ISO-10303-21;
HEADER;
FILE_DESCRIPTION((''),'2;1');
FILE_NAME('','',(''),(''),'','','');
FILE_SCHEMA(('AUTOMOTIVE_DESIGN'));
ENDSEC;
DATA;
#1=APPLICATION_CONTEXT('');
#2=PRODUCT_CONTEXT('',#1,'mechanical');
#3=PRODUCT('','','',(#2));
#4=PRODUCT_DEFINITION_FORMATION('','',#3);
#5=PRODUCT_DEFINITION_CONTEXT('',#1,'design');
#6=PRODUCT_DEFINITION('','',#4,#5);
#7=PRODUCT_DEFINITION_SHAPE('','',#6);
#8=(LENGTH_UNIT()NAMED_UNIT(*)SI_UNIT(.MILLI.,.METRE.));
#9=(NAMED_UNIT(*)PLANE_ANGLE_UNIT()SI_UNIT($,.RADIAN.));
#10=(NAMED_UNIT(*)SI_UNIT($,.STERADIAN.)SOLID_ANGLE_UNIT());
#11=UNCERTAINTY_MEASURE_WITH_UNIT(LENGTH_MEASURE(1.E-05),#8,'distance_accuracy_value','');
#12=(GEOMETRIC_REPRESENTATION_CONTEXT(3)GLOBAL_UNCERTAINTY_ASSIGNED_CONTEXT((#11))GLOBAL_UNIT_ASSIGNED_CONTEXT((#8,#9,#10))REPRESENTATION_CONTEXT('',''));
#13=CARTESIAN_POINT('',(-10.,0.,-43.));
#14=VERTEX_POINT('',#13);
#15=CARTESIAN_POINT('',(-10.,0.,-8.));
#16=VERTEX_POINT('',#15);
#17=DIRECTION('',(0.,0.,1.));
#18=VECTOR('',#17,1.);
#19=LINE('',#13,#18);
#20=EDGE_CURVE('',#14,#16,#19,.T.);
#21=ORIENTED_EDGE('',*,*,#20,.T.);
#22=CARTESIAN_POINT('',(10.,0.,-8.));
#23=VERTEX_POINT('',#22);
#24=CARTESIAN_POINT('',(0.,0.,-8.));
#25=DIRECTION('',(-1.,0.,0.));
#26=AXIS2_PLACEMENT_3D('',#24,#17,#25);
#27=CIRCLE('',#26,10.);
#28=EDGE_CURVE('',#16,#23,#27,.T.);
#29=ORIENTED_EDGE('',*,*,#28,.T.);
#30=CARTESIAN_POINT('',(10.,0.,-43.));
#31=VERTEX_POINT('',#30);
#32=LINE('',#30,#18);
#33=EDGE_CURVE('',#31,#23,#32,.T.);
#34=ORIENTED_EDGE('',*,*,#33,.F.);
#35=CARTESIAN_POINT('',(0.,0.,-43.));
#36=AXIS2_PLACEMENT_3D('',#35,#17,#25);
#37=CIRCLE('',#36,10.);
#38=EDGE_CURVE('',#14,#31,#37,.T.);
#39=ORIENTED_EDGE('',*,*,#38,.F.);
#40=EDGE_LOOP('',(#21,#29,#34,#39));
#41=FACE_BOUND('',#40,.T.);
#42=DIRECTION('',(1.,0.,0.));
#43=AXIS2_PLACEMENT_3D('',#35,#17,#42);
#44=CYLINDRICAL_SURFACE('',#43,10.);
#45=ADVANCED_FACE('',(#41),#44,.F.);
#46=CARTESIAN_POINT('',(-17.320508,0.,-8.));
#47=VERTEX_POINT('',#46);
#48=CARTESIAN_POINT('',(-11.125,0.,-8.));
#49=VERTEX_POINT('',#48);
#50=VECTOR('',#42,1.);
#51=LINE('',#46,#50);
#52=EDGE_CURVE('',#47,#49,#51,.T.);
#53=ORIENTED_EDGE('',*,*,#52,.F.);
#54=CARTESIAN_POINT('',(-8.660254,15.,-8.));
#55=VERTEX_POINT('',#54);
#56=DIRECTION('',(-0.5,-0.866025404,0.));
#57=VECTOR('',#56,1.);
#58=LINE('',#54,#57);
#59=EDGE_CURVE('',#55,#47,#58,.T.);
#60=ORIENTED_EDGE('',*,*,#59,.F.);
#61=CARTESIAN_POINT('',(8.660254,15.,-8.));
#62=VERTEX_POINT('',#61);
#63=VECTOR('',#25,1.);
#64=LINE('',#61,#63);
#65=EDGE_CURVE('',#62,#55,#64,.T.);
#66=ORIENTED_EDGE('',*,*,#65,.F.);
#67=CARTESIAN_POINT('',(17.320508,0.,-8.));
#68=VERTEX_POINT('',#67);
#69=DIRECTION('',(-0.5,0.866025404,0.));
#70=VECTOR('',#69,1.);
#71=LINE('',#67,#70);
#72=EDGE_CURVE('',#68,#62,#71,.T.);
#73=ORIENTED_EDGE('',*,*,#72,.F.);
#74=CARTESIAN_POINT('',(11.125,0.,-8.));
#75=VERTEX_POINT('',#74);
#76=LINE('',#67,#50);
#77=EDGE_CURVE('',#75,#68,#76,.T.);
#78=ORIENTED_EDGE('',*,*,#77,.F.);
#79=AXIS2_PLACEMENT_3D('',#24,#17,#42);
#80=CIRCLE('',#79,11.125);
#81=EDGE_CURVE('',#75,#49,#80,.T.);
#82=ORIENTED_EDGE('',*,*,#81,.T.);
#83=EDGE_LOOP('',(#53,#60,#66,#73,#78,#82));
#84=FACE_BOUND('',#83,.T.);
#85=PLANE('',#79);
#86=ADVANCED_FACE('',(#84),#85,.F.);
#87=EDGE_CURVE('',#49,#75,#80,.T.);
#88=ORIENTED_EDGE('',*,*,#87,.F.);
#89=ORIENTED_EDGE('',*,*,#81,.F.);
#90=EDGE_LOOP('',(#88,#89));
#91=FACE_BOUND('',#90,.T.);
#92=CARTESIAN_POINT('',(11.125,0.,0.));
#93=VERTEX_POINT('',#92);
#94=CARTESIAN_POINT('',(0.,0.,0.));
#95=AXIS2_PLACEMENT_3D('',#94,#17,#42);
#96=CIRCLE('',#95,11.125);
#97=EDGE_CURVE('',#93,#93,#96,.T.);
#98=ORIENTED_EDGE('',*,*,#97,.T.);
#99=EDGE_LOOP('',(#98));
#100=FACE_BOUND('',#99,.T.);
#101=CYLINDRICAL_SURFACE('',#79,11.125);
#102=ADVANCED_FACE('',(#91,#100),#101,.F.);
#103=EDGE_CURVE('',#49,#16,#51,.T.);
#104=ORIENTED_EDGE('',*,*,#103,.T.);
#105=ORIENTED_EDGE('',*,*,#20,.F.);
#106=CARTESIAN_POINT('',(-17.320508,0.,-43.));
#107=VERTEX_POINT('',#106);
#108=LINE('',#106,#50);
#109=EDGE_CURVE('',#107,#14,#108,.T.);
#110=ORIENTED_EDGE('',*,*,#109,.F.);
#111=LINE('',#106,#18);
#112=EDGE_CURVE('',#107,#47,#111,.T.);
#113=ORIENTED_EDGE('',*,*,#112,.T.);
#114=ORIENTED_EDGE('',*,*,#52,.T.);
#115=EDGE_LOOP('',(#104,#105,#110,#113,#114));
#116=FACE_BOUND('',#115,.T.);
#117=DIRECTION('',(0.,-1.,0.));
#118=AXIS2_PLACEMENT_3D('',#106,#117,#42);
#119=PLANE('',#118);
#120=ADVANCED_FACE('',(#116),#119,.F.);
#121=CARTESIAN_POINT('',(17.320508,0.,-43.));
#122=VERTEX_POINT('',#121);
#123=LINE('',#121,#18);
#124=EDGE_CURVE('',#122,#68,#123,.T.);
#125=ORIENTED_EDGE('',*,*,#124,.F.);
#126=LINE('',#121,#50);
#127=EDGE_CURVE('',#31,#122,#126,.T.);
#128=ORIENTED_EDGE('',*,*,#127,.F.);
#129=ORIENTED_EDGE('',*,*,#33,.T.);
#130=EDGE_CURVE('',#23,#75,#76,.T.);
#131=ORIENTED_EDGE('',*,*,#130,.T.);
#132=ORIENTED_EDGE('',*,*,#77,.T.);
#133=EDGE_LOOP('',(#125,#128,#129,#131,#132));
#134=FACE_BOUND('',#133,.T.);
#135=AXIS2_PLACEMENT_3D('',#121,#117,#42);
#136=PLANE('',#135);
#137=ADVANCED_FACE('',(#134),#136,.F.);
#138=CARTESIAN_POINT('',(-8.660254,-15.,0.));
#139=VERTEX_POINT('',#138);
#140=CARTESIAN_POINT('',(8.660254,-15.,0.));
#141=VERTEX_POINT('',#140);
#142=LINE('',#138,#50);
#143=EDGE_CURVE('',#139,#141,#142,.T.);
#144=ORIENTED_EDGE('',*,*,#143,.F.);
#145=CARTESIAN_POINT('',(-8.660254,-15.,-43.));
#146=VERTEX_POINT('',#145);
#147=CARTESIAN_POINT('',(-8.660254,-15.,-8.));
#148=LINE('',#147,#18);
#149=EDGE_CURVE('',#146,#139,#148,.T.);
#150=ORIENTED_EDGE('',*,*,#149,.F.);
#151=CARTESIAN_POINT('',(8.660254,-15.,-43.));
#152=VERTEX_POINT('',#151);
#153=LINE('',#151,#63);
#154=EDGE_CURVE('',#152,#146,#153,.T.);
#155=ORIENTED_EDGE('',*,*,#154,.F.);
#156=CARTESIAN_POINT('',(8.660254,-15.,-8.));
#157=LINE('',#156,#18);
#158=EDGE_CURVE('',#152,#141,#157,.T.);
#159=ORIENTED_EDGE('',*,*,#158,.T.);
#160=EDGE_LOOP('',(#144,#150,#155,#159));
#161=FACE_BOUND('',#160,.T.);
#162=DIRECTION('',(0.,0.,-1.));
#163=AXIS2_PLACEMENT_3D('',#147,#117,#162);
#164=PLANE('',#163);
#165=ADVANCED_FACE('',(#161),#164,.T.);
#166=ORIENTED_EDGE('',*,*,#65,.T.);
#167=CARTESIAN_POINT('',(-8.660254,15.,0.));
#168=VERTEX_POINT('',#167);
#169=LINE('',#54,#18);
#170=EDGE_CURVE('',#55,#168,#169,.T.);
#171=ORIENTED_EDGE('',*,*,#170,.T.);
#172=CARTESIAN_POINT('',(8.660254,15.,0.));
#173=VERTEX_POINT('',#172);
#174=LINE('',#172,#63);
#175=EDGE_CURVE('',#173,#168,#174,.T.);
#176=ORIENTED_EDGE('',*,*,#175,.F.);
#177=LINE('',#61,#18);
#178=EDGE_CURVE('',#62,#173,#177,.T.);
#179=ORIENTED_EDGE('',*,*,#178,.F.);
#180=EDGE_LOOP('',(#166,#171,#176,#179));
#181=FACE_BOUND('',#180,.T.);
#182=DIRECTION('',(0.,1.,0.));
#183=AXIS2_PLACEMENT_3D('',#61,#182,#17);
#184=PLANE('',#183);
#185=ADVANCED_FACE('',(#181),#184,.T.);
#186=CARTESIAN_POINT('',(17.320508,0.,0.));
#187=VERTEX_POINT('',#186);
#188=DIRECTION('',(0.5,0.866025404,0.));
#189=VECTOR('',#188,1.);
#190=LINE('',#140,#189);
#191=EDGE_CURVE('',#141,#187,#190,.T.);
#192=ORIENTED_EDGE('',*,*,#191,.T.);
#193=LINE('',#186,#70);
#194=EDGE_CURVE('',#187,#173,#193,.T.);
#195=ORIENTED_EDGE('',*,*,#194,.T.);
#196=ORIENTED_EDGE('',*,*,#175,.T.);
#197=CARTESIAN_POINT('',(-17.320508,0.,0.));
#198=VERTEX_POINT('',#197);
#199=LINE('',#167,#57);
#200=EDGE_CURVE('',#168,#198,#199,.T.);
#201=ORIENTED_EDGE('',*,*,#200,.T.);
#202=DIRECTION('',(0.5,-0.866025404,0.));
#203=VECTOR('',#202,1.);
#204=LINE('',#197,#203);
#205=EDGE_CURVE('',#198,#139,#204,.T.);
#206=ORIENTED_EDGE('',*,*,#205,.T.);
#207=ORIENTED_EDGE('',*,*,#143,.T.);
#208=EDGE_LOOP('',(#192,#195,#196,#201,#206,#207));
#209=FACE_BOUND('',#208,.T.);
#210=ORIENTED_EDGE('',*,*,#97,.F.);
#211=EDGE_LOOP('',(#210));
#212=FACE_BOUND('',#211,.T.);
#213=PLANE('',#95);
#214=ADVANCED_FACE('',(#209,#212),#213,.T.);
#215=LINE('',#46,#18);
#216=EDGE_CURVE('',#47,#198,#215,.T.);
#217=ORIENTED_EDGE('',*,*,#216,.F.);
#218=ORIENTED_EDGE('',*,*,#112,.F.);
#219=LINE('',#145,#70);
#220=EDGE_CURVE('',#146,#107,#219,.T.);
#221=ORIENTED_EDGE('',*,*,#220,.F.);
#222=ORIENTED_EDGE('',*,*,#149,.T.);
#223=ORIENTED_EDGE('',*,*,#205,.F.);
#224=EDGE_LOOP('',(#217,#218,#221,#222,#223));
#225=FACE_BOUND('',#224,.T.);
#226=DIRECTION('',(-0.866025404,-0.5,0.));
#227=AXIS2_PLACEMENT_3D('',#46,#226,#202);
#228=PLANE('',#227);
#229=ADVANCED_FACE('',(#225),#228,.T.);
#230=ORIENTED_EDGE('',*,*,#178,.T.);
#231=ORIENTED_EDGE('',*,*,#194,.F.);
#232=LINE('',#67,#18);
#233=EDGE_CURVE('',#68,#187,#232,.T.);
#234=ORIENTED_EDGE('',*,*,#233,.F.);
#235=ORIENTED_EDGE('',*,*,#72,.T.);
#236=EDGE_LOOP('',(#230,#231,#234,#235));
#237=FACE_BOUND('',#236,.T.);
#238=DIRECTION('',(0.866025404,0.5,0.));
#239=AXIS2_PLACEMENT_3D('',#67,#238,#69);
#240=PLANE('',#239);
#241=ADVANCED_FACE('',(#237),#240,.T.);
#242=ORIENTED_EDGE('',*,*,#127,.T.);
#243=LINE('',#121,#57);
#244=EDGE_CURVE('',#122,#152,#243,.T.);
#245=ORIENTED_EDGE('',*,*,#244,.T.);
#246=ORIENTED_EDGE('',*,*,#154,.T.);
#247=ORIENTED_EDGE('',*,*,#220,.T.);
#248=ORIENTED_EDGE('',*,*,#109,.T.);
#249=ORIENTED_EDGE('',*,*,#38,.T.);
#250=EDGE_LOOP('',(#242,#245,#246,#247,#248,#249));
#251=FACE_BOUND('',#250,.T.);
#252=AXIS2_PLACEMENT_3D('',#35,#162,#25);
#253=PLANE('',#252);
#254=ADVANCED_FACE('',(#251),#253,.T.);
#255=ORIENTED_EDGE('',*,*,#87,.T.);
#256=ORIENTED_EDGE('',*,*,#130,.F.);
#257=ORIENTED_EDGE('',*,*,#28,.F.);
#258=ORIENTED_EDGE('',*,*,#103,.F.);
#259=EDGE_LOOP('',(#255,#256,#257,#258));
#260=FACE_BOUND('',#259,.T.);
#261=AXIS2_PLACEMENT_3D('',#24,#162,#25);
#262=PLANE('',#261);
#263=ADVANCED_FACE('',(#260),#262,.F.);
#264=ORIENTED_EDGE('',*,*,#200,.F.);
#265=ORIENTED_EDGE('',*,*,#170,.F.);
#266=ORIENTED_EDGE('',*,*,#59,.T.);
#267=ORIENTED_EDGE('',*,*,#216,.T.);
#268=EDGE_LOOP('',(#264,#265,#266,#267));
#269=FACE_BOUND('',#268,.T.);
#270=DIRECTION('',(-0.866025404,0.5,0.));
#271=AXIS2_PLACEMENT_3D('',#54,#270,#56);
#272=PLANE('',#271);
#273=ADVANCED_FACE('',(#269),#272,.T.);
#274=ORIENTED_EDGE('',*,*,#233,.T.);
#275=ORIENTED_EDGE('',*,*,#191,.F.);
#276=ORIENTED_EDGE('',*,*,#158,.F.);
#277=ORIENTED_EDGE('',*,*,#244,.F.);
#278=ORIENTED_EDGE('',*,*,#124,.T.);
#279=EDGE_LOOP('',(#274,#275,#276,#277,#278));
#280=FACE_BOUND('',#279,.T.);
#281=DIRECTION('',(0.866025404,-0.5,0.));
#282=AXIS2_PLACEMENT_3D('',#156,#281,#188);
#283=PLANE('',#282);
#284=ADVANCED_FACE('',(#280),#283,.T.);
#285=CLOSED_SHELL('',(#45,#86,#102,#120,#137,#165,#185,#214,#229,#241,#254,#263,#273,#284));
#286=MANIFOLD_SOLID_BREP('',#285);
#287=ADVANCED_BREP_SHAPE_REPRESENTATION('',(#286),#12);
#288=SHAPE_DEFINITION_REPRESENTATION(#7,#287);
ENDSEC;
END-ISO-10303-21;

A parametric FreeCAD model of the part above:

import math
import FreeCAD as App
import Part
import Sketcher
Q = App.Units.Quantity


def add_polygon(sketch, points):
    """Adds a closed chain of lines whose ends are joined by coincident constraints."""
    first, n = sketch.GeometryCount, len(points)
    for a, b in zip(points, points[1:] + points[:1]):
        sketch.addGeometry(Part.LineSegment(App.Vector(*a, 0), App.Vector(*b, 0)), False)
    for i in range(n):
        sketch.addConstraint(Sketcher.Constraint("Coincident", first + i, 2, first + (i + 1) % n, 1))

doc = App.newDocument("Part")
body = doc.addObject("PartDesign::Body", "Body")

# Sketch on XY plane
sketch1 = body.newObject("Sketcher::SketchObject", "Sketch")
sketch1.AttachmentSupport = (doc.getObject("XY_Plane"), [""])
sketch1.MapMode = "FlatFace"
add_polygon(sketch1, [(17, 0), (9, 15), (-9, 15), (-17, 0), (-9, -15), (9, -15)])  # lines 0-5
sketch1.addGeometry(Part.Circle(App.Vector(0, 0, 0), App.Vector(0, 0, 1), 11), False)  # 6
sketch1.addConstraint([
    Sketcher.Constraint("Horizontal", 1),
    Sketcher.Constraint("Horizontal", 4),
    Sketcher.Constraint("Coincident", 6, 3, -1, 1),
    Sketcher.Constraint("Symmetric", 0, 2, 3, 2, -1, 1),
    Sketcher.Constraint("Symmetric", 2, 2, 5, 2, -1, 1),
    Sketcher.Constraint("PointOnObject", 2, 2, -1),
    Sketcher.Constraint("Parallel", 2, 5),
    Sketcher.Constraint("Vertical", 1, 2, 3, 2),
    Sketcher.Constraint("Diameter", 6, Q("22.25 mm")),
    Sketcher.Constraint("Angle", 0, Q("120 deg")),
    Sketcher.Constraint("DistanceY", -1, 1, 0, 2, Q("15 mm")),
    Sketcher.Constraint("DistanceX", 1, 2, 1, 1, Q("17.320508 mm")),
])
pad1 = body.newObject("PartDesign::Pad", "Pad")
pad1.Profile = sketch1
pad1.Length = 8
pad1.Reversed = True

# Sketch on XY plane
sketch2 = body.newObject("Sketcher::SketchObject", "Sketch001")
sketch2.AttachmentSupport = (doc.getObject("XY_Plane"), [""])
sketch2.MapMode = "FlatFace"
sketch2.AttachmentOffset = App.Placement(App.Vector(0, 0, -8), App.Rotation())
sketch2.addGeometry([
    Part.LineSegment(App.Vector(10, 0, 0), App.Vector(17, 0, 0)),  # 0
    Part.LineSegment(App.Vector(17, 0, 0), App.Vector(9, -15, 0)),  # 1
    Part.LineSegment(App.Vector(9, -15, 0), App.Vector(-9, -15, 0)),  # 2
    Part.LineSegment(App.Vector(-9, -15, 0), App.Vector(-17, 0, 0)),  # 3
    Part.LineSegment(App.Vector(-17, 0, 0), App.Vector(-10, 0, 0)),  # 4
    Part.ArcOfCircle(Part.Circle(App.Vector(0, 0, 0), App.Vector(0, 0, 1), 10), math.radians(180), math.radians(360)),  # 5
], False)
sketch2.addConstraint([
    Sketcher.Constraint("Coincident", 0, 2, 1, 1),
    Sketcher.Constraint("Coincident", 1, 2, 2, 1),
    Sketcher.Constraint("Coincident", 2, 2, 3, 1),
    Sketcher.Constraint("Coincident", 3, 2, 4, 1),
    Sketcher.Constraint("Coincident", 4, 2, 5, 1),
    Sketcher.Constraint("Coincident", 5, 2, 0, 1),
    Sketcher.Constraint("Horizontal", 0),
    Sketcher.Constraint("Horizontal", 2),
    Sketcher.Constraint("Horizontal", 4),
    Sketcher.Constraint("Coincident", 5, 3, -1, 1),
    Sketcher.Constraint("Symmetric", 0, 2, 3, 2, -1, 1),
    Sketcher.Constraint("PointOnObject", 0, 2, -1),
    Sketcher.Constraint("Equal", 1, 3),
    Sketcher.Constraint("Radius", 5, Q("10 mm")),
    Sketcher.Constraint("Angle", 1, Q("-120 deg")),
    Sketcher.Constraint("DistanceY", 1, 2, -1, 1, Q("15 mm")),
    Sketcher.Constraint("DistanceX", 0, 1, 0, 2, Q("7.320508 mm")),
])
pad2 = body.newObject("PartDesign::Pad", "Pad001")
pad2.Profile = sketch2
pad2.Length = 35
pad2.Reversed = True

doc.recompute()
